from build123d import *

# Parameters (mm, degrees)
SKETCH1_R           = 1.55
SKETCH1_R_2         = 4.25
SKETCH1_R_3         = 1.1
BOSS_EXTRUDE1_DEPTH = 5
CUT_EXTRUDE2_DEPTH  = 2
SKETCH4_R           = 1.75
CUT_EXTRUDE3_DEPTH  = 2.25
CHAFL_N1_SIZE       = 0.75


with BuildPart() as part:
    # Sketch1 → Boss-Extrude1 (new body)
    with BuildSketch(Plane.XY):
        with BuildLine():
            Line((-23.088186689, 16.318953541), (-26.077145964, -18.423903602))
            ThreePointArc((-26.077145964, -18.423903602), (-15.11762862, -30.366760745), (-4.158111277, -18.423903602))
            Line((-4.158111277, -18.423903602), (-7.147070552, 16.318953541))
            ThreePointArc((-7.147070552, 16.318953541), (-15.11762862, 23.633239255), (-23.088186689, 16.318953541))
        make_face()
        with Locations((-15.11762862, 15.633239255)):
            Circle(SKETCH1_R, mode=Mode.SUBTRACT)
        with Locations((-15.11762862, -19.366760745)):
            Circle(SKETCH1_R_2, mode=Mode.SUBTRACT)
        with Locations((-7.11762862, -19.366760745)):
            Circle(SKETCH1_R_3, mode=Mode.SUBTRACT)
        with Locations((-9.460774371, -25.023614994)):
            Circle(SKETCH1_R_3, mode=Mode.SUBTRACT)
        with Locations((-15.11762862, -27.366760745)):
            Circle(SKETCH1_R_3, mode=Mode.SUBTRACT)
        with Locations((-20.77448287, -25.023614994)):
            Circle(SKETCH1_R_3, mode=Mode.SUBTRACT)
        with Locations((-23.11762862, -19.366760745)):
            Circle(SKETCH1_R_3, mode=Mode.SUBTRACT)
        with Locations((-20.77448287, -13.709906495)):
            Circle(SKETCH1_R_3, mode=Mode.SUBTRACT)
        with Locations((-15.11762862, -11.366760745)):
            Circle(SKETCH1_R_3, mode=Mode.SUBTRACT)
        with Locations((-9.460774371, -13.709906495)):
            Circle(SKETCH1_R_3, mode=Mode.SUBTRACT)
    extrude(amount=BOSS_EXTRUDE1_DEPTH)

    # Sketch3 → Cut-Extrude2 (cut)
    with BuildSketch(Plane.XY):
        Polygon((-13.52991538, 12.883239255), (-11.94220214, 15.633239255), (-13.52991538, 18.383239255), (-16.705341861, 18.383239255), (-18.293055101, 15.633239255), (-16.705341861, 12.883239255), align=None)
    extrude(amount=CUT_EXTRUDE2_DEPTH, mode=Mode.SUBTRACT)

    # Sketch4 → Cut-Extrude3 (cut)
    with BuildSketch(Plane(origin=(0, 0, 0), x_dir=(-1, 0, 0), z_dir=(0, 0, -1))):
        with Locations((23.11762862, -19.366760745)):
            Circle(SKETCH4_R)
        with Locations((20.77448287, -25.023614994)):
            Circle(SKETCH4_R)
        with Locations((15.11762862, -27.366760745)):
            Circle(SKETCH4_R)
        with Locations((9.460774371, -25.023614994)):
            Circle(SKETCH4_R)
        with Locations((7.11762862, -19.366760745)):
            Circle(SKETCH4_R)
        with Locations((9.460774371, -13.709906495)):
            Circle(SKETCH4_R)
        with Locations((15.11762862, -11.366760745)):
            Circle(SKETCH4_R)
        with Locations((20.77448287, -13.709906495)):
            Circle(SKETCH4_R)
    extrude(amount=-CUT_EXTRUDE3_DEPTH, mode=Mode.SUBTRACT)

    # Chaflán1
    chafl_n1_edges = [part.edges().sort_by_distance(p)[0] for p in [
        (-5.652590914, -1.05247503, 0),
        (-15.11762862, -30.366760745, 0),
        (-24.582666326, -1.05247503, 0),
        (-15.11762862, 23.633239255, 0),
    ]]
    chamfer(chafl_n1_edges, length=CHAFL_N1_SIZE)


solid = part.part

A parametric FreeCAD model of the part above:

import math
import FreeCAD as App
import Part
import Sketcher

V = App.Vector
Q = App.Units.Quantity


def edges_at(feature, points):
    """Names of the edges that pass closest to the given points."""
    edges = feature.Shape.Edges
    near = lambda p: min(range(len(edges)), key=lambda i: edges[i].distToShape(Part.Vertex(*p))[0])
    return sorted({f"Edge{near(p) + 1}" for p in points})

doc = App.newDocument("Part")
body = doc.addObject("PartDesign::Body", "Body")

# Sketch on XY plane
sketch1 = doc.addObject("Sketcher::SketchObject", "Sketch")
body.addObject(sketch1)
sketch1.AttachmentSupport = (doc.XY_Plane, [""])
sketch1.MapMode = "FlatFace"
sketch1.addGeometry(Part.LineSegment(V(-23.088187, 16.318954, 0), V(-26.077146, -18.423904, 0)), False)
sketch1.addGeometry(Part.ArcOfCircle(Part.Circle(V(-15.117629, -19.366761, 0), V(0, 0, 1), 11), math.radians(175.0829), math.radians(364.9171)), False)
sketch1.addGeometry(Part.LineSegment(V(-4.158111, -18.423904, 0), V(-7.147071, 16.318954, 0)), False)
sketch1.addGeometry(Part.ArcOfCircle(Part.Circle(V(-15.117629, 15.633239, 0), V(0, 0, 1), 8), math.radians(4.9171), math.radians(175.0829)), False)
sketch1.addGeometry(Part.Circle(V(-20.774483, -25.023615, 0), V(0, 0, 1), 1.1), False)
sketch1.addGeometry(Part.Circle(V(-23.117629, -19.366761, 0), V(0, 0, 1), 1.1), False)
sketch1.addGeometry(Part.Circle(V(-20.774483, -13.709906, 0), V(0, 0, 1), 1.1), False)
sketch1.addGeometry(Part.Circle(V(-15.117629, -27.366761, 0), V(0, 0, 1), 1.1), False)
sketch1.addGeometry(Part.Circle(V(-15.117629, -19.366761, 0), V(0, 0, 1), 4.25), False)
sketch1.addGeometry(Part.Circle(V(-9.460774, -25.023615, 0), V(0, 0, 1), 1.1), False)
sketch1.addGeometry(Part.Circle(V(-7.117629, -19.366761, 0), V(0, 0, 1), 1.1), False)
sketch1.addGeometry(Part.Circle(V(-15.117629, -11.366761, 0), V(0, 0, 1), 1.1), False)
sketch1.addGeometry(Part.Circle(V(-9.460774, -13.709906, 0), V(0, 0, 1), 1.1), False)
sketch1.addGeometry(Part.Circle(V(-15.117629, 15.633239, 0), V(0, 0, 1), 1.55), False)
sketch1.addConstraint(Sketcher.Constraint("Tangent", 0, 2, 1, 1))
sketch1.addConstraint(Sketcher.Constraint("Tangent", 1, 2, 2, 1))
sketch1.addConstraint(Sketcher.Constraint("Tangent", 2, 2, 3, 1))
sketch1.addConstraint(Sketcher.Constraint("Tangent", 3, 2, 0, 1))
sketch1.addConstraint(Sketcher.Constraint("Coincident", 8, 3, 1, 3))
sketch1.addConstraint(Sketcher.Constraint("Coincident", 13, 3, 3, 3))
sketch1.addConstraint(Sketcher.Constraint("Equal", 4, 5))
sketch1.addConstraint(Sketcher.Constraint("Equal", 5, 6))
sketch1.addConstraint(Sketcher.Constraint("Equal", 6, 7))
sketch1.addConstraint(Sketcher.Constraint("Equal", 7, 9))
sketch1.addConstraint(Sketcher.Constraint("Equal", 9, 10))
sketch1.addConstraint(Sketcher.Constraint("Equal", 10, 11))
sketch1.addConstraint(Sketcher.Constraint("Equal", 11, 12))
sketch1.addConstraint(Sketcher.Constraint("Horizontal", 1, 3, 5, 3))
sketch1.addConstraint(Sketcher.Constraint("Horizontal", 4, 3, 9, 3))
sketch1.addConstraint(Sketcher.Constraint("Horizontal", 8, 3, 10, 3))
sketch1.addConstraint(Sketcher.Constraint("Horizontal", 6, 3, 12, 3))
sketch1.addConstraint(Sketcher.Constraint("Horizontal", 0, 2, 1, 2))
sketch1.addConstraint(Sketcher.Constraint("Vertical", 4, 3, 6, 3))
sketch1.addConstraint(Sketcher.Constraint("Vertical", 3, 3, 7, 3))
sketch1.addConstraint(Sketcher.Constraint("Vertical", 8, 3, 11, 3))
sketch1.addConstraint(Sketcher.Constraint("Vertical", 9, 3, 12, 3))
sketch1.addConstraint(Sketcher.Constraint("Radius", 1, 11.0))
sketch1.addConstraint(Sketcher.Constraint("Radius", 3, 8.0))
sketch1.addConstraint(Sketcher.Constraint("Diameter", 4, 2.2))
sketch1.addConstraint(Sketcher.Constraint("Diameter", 8, 8.5))
sketch1.addConstraint(Sketcher.Constraint("Diameter", 13, 3.1))
sketch1.addConstraint(Sketcher.Constraint("DistanceY", 1, 3, 3, 3, 35.0))
sketch1.addConstraint(Sketcher.Constraint("DistanceX", 5, 3, 1, 3, 8.0))
sketch1.addConstraint(Sketcher.Constraint("DistanceY", 7, 3, 1, 3, 8.0))
sketch1.addConstraint(Sketcher.Constraint("DistanceX", 1, 3, 10, 3, 8.0))
sketch1.addConstraint(Sketcher.Constraint("DistanceY", 1, 3, 11, 3, 8.0))
sketch1.addConstraint(Sketcher.Constraint("DistanceX", 1, 3, -1, 1, 15.117629))
sketch1.addConstraint(Sketcher.Constraint("DistanceY", 1, 3, -1, 1, 19.366761))
sketch1.addConstraint(Sketcher.Constraint("DistanceY", 4, 3, 6, 3, 11.313708))
sketch1.addConstraint(Sketcher.Constraint("DistanceX", 4, 3, 9, 3, 11.313708))
sketch1.addConstraint(Sketcher.Constraint("DistanceY", 4, 3, 0, 2, 6.599711))
sketch1.addConstraint(Sketcher.Constraint("DistanceX", 4, 3, -1, 1, 20.774483))
pad1 = doc.addObject("PartDesign::Pad", "Pad")
body.addObject(pad1)
pad1.Profile = sketch1
pad1.Length = 5

# Sketch on XY plane
sketch2 = doc.addObject("Sketcher::SketchObject", "Sketch001")
body.addObject(sketch2)
sketch2.AttachmentSupport = (doc.XY_Plane, [""])
sketch2.MapMode = "FlatFace"
sketch2.addGeometry(Part.LineSegment(V(-13.529915, 12.883239, 0), V(-11.942202, 15.633239, 0)), False)
sketch2.addGeometry(Part.LineSegment(V(-11.942202, 15.633239, 0), V(-13.529915, 18.383239, 0)), False)
sketch2.addGeometry(Part.LineSegment(V(-13.529915, 18.383239, 0), V(-16.705342, 18.383239, 0)), False)
sketch2.addGeometry(Part.LineSegment(V(-16.705342, 18.383239, 0), V(-18.293055, 15.633239, 0)), False)
sketch2.addGeometry(Part.LineSegment(V(-18.293055, 15.633239, 0), V(-16.705342, 12.883239, 0)), False)
sketch2.addGeometry(Part.LineSegment(V(-16.705342, 12.883239, 0), V(-13.529915, 12.883239, 0)), False)
sketch2.addConstraint(Sketcher.Constraint("Coincident", 0, 2, 1, 1))
sketch2.addConstraint(Sketcher.Constraint("Coincident", 1, 2, 2, 1))
sketch2.addConstraint(Sketcher.Constraint("Coincident", 2, 2, 3, 1))
sketch2.addConstraint(Sketcher.Constraint("Coincident", 3, 2, 4, 1))
sketch2.addConstraint(Sketcher.Constraint("Coincident", 4, 2, 5, 1))
sketch2.addConstraint(Sketcher.Constraint("Coincident", 5, 2, 0, 1))
sketch2.addConstraint(Sketcher.Constraint("Horizontal", 2))
sketch2.addConstraint(Sketcher.Constraint("Horizontal", 5))
sketch2.addConstraint(Sketcher.Constraint("Parallel", 0, 3))
sketch2.addConstraint(Sketcher.Constraint("Parallel", 1, 4))
sketch2.addConstraint(Sketcher.Constraint("Horizontal", 0, 2, 3, 2))
sketch2.addConstraint(Sketcher.Constraint("Vertical", 2, 2, 4, 2))
sketch2.addConstraint(Sketcher.Constraint("Vertical", 1, 2, 5, 2))
sketch2.addConstraint(Sketcher.Constraint("Angle", 0, Q("60 deg")))
sketch2.addConstraint(Sketcher.Constraint("DistanceY", 4, 2, 2, 2, 5.5))
sketch2.addConstraint(Sketcher.Constraint("DistanceX", 2, 2, 2, 1, 3.175426))
sketch2.addConstraint(Sketcher.Constraint("DistanceY", -1, 1, 0, 2, 15.633239))
sketch2.addConstraint(Sketcher.Constraint("DistanceX", 2, 2, -1, 1, 16.705342))
pocket1 = doc.addObject("PartDesign::Pocket", "Pocket")
body.addObject(pocket1)
pocket1.Profile = sketch2
pocket1.Length = 2
pocket1.Reversed = True

# Sketch on XY plane
sketch3 = doc.addObject("Sketcher::SketchObject", "Sketch002")
body.addObject(sketch3)
sketch3.AttachmentSupport = (doc.XY_Plane, [""])
sketch3.MapMode = "FlatFace"
sketch3.addGeometry(Part.Circle(V(-23.117629, -19.366761, 0), V(0, 0, 1), 1.75), False)
sketch3.addGeometry(Part.Circle(V(-20.774483, -25.023615, 0), V(0, 0, 1), 1.75), False)
sketch3.addGeometry(Part.Circle(V(-15.117629, -27.366761, 0), V(0, 0, 1), 1.75), False)
sketch3.addGeometry(Part.Circle(V(-9.460774, -25.023615, 0), V(0, 0, 1), 1.75), False)
sketch3.addGeometry(Part.Circle(V(-7.117629, -19.366761, 0), V(0, 0, 1), 1.75), False)
sketch3.addGeometry(Part.Circle(V(-9.460774, -13.709906, 0), V(0, 0, 1), 1.75), False)
sketch3.addGeometry(Part.Circle(V(-15.117629, -11.366761, 0), V(0, 0, 1), 1.75), False)
sketch3.addGeometry(Part.Circle(V(-20.774483, -13.709906, 0), V(0, 0, 1), 1.75), False)
sketch3.addConstraint(Sketcher.Constraint("Equal", 0, 1))
sketch3.addConstraint(Sketcher.Constraint("Equal", 1, 2))
sketch3.addConstraint(Sketcher.Constraint("Equal", 2, 3))
sketch3.addConstraint(Sketcher.Constraint("Equal", 3, 4))
sketch3.addConstraint(Sketcher.Constraint("Equal", 4, 5))
sketch3.addConstraint(Sketcher.Constraint("Equal", 5, 6))
sketch3.addConstraint(Sketcher.Constraint("Equal", 6, 7))
sketch3.addConstraint(Sketcher.Constraint("Horizontal", 1, 3, 3, 3))
sketch3.addConstraint(Sketcher.Constraint("Horizontal", 0, 3, 4, 3))
sketch3.addConstraint(Sketcher.Constraint("Horizontal", 5, 3, 7, 3))
sketch3.addConstraint(Sketcher.Constraint("Vertical", 3, 3, 5, 3))
sketch3.addConstraint(Sketcher.Constraint("Vertical", 2, 3, 6, 3))
sketch3.addConstraint(Sketcher.Constraint("Vertical", 1, 3, 7, 3))
sketch3.addConstraint(Sketcher.Constraint("Diameter", 0, 3.5))
sketch3.addConstraint(Sketcher.Constraint("DistanceX", 0, 3, 2, 3, 8.0))
sketch3.addConstraint(Sketcher.Constraint("DistanceY", 2, 3, 0, 3, 8.0))
sketch3.addConstraint(Sketcher.Constraint("DistanceX", 2, 3, 4, 3, 8.0))
sketch3.addConstraint(Sketcher.Constraint("DistanceY", 0, 3, 6, 3, 8.0))
sketch3.addConstraint(Sketcher.Constraint("DistanceX", 0, 3, -1, 1, 23.117629))
sketch3.addConstraint(Sketcher.Constraint("DistanceY", 0, 3, -1, 1, 19.366761))
sketch3.addConstraint(Sketcher.Constraint("DistanceX", 1, 3, 3, 3, 11.313708))
sketch3.addConstraint(Sketcher.Constraint("DistanceY", 3, 3, 5, 3, 11.313708))
sketch3.addConstraint(Sketcher.Constraint("DistanceX", 1, 3, -1, 1, 20.774483))
sketch3.addConstraint(Sketcher.Constraint("DistanceY", 1, 3, -1, 1, 25.023615))
pocket2 = doc.addObject("PartDesign::Pocket", "Pocket001")
body.addObject(pocket2)
pocket2.Profile = sketch3
pocket2.Length = 2.25
pocket2.Reversed = True
doc.recompute()

chamfer = doc.addObject("PartDesign::Chamfer", "Chamfer")
body.addObject(chamfer)
chamfer.Base = (pocket2, edges_at(pocket2, [
    (-5.653, -1.052, 0),
    (-15.118, -30.367, 0),
    (-24.583, -1.052, 0),
    (-15.118, 23.633, 0),
]))
chamfer.Size = 0.75

doc.recompute()
